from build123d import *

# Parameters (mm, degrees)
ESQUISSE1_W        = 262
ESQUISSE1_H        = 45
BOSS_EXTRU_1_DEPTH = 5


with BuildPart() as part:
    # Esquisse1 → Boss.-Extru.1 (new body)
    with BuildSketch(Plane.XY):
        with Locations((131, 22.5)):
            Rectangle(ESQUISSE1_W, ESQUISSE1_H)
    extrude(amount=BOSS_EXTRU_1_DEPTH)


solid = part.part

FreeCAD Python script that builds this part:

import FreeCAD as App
import Part
import Sketcher

V = App.Vector


def add_polygon(sketch, points):
    """Adds a closed chain of lines whose ends are joined by coincident constraints."""
    first, n = sketch.GeometryCount, len(points)
    for a, b in zip(points, points[1:] + points[:1]):
        sketch.addGeometry(Part.LineSegment(App.Vector(*a, 0), App.Vector(*b, 0)), False)
    for i in range(n):
        sketch.addConstraint(Sketcher.Constraint("Coincident", first + i, 2, first + (i + 1) % n, 1))

doc = App.newDocument("Part")
body = doc.addObject("PartDesign::Body", "Body")

sketch1 = body.newObject("Sketcher::SketchObject", "Sketch")
sketch1.AttachmentSupport = (doc.getObject("XY_Plane"), [""])
sketch1.MapMode = "FlatFace"
add_polygon(sketch1, [(0, 45), (0, 0), (262, 0), (262, 45)])
sketch1.addConstraint([
    Sketcher.Constraint("Vertical", 0),
    Sketcher.Constraint("Horizontal", 1),
    Sketcher.Constraint("Vertical", 2),
    Sketcher.Constraint("Horizontal", 3),
    Sketcher.Constraint("Coincident", 0, 2, -1, 1),
    Sketcher.Constraint("DistanceX", 1, 1, 1, 2, 262.0),
    Sketcher.Constraint("DistanceY", 0, 2, 0, 1, 45.0),
])
pad1 = body.newObject("PartDesign::Pad", "Pad")
pad1.Profile = sketch1
pad1.Length = 5

doc.recompute()
